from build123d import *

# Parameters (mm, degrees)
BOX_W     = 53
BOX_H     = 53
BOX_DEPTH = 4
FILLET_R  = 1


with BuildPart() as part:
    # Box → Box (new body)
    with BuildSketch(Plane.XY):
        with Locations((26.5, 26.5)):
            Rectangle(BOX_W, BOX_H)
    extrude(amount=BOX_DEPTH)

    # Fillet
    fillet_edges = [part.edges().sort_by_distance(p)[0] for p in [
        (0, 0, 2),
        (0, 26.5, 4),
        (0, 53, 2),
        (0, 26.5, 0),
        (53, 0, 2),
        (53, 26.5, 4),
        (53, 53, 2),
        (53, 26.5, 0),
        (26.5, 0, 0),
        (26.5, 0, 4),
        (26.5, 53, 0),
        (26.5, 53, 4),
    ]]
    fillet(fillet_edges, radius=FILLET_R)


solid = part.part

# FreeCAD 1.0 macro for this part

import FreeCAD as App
import Part
import Sketcher
from FreeCAD import Vector

doc = App.newDocument("Part")
params = doc.addObject("Spreadsheet::Sheet", "Params")
for row, (alias, value) in enumerate([
    ("sketch1_width", "53 mm"),
    ("pad1_length", "4 mm"),
    ("fillet_radius", "1 mm"),
], start=1):
    params.set(f"A{row}", alias)
    params.set(f"B{row}", "=" + value)
    params.setAlias(f"B{row}", alias)

body = doc.addObject("PartDesign::Body", "Body")

sketch1 = body.newObject("Sketcher::SketchObject", "Sketch")
sketch1.AttachmentSupport = (doc.getObject("XY_Plane"), [""])
sketch1.MapMode = "FlatFace"
sketch1.addGeometry([
    Part.LineSegment(Vector(0, 53, 0), Vector(0, 0, 0)),
    Part.LineSegment(Vector(0, 0, 0), Vector(53, 0, 0)),
    Part.LineSegment(Vector(53, 0, 0), Vector(53, 53, 0)),
    Part.LineSegment(Vector(53, 53, 0), Vector(0, 53, 0)),
], False)
sketch1.addConstraint([
    Sketcher.Constraint("Coincident", 0, 2, 1, 1),
    Sketcher.Constraint("Coincident", 1, 2, 2, 1),
    Sketcher.Constraint("Coincident", 2, 2, 3, 1),
    Sketcher.Constraint("Coincident", 3, 2, 0, 1),
    Sketcher.Constraint("Vertical", 0),
    Sketcher.Constraint("Horizontal", 1),
    Sketcher.Constraint("Vertical", 2),
    Sketcher.Constraint("Horizontal", 3),
    Sketcher.Constraint("Coincident", 0, 2, -1, 1),
    Sketcher.Constraint("Equal", 3, 0),
    Sketcher.Constraint("DistanceX", 1, 1, 1, 2, 53.0),
])
sketch1.setExpression("Constraints[10]", "Params.sketch1_width")
pad1 = body.newObject("PartDesign::Pad", "Pad")
pad1.Profile = sketch1
pad1.setExpression("Length", "Params.pad1_length")
doc.recompute()

fillet = body.newObject("PartDesign::Fillet", "Fillet")
fillet.Base = (pad1, ["Edge1"])
fillet.UseAllEdges = True
fillet.setExpression("Radius", "Params.fillet_radius")

doc.recompute()
